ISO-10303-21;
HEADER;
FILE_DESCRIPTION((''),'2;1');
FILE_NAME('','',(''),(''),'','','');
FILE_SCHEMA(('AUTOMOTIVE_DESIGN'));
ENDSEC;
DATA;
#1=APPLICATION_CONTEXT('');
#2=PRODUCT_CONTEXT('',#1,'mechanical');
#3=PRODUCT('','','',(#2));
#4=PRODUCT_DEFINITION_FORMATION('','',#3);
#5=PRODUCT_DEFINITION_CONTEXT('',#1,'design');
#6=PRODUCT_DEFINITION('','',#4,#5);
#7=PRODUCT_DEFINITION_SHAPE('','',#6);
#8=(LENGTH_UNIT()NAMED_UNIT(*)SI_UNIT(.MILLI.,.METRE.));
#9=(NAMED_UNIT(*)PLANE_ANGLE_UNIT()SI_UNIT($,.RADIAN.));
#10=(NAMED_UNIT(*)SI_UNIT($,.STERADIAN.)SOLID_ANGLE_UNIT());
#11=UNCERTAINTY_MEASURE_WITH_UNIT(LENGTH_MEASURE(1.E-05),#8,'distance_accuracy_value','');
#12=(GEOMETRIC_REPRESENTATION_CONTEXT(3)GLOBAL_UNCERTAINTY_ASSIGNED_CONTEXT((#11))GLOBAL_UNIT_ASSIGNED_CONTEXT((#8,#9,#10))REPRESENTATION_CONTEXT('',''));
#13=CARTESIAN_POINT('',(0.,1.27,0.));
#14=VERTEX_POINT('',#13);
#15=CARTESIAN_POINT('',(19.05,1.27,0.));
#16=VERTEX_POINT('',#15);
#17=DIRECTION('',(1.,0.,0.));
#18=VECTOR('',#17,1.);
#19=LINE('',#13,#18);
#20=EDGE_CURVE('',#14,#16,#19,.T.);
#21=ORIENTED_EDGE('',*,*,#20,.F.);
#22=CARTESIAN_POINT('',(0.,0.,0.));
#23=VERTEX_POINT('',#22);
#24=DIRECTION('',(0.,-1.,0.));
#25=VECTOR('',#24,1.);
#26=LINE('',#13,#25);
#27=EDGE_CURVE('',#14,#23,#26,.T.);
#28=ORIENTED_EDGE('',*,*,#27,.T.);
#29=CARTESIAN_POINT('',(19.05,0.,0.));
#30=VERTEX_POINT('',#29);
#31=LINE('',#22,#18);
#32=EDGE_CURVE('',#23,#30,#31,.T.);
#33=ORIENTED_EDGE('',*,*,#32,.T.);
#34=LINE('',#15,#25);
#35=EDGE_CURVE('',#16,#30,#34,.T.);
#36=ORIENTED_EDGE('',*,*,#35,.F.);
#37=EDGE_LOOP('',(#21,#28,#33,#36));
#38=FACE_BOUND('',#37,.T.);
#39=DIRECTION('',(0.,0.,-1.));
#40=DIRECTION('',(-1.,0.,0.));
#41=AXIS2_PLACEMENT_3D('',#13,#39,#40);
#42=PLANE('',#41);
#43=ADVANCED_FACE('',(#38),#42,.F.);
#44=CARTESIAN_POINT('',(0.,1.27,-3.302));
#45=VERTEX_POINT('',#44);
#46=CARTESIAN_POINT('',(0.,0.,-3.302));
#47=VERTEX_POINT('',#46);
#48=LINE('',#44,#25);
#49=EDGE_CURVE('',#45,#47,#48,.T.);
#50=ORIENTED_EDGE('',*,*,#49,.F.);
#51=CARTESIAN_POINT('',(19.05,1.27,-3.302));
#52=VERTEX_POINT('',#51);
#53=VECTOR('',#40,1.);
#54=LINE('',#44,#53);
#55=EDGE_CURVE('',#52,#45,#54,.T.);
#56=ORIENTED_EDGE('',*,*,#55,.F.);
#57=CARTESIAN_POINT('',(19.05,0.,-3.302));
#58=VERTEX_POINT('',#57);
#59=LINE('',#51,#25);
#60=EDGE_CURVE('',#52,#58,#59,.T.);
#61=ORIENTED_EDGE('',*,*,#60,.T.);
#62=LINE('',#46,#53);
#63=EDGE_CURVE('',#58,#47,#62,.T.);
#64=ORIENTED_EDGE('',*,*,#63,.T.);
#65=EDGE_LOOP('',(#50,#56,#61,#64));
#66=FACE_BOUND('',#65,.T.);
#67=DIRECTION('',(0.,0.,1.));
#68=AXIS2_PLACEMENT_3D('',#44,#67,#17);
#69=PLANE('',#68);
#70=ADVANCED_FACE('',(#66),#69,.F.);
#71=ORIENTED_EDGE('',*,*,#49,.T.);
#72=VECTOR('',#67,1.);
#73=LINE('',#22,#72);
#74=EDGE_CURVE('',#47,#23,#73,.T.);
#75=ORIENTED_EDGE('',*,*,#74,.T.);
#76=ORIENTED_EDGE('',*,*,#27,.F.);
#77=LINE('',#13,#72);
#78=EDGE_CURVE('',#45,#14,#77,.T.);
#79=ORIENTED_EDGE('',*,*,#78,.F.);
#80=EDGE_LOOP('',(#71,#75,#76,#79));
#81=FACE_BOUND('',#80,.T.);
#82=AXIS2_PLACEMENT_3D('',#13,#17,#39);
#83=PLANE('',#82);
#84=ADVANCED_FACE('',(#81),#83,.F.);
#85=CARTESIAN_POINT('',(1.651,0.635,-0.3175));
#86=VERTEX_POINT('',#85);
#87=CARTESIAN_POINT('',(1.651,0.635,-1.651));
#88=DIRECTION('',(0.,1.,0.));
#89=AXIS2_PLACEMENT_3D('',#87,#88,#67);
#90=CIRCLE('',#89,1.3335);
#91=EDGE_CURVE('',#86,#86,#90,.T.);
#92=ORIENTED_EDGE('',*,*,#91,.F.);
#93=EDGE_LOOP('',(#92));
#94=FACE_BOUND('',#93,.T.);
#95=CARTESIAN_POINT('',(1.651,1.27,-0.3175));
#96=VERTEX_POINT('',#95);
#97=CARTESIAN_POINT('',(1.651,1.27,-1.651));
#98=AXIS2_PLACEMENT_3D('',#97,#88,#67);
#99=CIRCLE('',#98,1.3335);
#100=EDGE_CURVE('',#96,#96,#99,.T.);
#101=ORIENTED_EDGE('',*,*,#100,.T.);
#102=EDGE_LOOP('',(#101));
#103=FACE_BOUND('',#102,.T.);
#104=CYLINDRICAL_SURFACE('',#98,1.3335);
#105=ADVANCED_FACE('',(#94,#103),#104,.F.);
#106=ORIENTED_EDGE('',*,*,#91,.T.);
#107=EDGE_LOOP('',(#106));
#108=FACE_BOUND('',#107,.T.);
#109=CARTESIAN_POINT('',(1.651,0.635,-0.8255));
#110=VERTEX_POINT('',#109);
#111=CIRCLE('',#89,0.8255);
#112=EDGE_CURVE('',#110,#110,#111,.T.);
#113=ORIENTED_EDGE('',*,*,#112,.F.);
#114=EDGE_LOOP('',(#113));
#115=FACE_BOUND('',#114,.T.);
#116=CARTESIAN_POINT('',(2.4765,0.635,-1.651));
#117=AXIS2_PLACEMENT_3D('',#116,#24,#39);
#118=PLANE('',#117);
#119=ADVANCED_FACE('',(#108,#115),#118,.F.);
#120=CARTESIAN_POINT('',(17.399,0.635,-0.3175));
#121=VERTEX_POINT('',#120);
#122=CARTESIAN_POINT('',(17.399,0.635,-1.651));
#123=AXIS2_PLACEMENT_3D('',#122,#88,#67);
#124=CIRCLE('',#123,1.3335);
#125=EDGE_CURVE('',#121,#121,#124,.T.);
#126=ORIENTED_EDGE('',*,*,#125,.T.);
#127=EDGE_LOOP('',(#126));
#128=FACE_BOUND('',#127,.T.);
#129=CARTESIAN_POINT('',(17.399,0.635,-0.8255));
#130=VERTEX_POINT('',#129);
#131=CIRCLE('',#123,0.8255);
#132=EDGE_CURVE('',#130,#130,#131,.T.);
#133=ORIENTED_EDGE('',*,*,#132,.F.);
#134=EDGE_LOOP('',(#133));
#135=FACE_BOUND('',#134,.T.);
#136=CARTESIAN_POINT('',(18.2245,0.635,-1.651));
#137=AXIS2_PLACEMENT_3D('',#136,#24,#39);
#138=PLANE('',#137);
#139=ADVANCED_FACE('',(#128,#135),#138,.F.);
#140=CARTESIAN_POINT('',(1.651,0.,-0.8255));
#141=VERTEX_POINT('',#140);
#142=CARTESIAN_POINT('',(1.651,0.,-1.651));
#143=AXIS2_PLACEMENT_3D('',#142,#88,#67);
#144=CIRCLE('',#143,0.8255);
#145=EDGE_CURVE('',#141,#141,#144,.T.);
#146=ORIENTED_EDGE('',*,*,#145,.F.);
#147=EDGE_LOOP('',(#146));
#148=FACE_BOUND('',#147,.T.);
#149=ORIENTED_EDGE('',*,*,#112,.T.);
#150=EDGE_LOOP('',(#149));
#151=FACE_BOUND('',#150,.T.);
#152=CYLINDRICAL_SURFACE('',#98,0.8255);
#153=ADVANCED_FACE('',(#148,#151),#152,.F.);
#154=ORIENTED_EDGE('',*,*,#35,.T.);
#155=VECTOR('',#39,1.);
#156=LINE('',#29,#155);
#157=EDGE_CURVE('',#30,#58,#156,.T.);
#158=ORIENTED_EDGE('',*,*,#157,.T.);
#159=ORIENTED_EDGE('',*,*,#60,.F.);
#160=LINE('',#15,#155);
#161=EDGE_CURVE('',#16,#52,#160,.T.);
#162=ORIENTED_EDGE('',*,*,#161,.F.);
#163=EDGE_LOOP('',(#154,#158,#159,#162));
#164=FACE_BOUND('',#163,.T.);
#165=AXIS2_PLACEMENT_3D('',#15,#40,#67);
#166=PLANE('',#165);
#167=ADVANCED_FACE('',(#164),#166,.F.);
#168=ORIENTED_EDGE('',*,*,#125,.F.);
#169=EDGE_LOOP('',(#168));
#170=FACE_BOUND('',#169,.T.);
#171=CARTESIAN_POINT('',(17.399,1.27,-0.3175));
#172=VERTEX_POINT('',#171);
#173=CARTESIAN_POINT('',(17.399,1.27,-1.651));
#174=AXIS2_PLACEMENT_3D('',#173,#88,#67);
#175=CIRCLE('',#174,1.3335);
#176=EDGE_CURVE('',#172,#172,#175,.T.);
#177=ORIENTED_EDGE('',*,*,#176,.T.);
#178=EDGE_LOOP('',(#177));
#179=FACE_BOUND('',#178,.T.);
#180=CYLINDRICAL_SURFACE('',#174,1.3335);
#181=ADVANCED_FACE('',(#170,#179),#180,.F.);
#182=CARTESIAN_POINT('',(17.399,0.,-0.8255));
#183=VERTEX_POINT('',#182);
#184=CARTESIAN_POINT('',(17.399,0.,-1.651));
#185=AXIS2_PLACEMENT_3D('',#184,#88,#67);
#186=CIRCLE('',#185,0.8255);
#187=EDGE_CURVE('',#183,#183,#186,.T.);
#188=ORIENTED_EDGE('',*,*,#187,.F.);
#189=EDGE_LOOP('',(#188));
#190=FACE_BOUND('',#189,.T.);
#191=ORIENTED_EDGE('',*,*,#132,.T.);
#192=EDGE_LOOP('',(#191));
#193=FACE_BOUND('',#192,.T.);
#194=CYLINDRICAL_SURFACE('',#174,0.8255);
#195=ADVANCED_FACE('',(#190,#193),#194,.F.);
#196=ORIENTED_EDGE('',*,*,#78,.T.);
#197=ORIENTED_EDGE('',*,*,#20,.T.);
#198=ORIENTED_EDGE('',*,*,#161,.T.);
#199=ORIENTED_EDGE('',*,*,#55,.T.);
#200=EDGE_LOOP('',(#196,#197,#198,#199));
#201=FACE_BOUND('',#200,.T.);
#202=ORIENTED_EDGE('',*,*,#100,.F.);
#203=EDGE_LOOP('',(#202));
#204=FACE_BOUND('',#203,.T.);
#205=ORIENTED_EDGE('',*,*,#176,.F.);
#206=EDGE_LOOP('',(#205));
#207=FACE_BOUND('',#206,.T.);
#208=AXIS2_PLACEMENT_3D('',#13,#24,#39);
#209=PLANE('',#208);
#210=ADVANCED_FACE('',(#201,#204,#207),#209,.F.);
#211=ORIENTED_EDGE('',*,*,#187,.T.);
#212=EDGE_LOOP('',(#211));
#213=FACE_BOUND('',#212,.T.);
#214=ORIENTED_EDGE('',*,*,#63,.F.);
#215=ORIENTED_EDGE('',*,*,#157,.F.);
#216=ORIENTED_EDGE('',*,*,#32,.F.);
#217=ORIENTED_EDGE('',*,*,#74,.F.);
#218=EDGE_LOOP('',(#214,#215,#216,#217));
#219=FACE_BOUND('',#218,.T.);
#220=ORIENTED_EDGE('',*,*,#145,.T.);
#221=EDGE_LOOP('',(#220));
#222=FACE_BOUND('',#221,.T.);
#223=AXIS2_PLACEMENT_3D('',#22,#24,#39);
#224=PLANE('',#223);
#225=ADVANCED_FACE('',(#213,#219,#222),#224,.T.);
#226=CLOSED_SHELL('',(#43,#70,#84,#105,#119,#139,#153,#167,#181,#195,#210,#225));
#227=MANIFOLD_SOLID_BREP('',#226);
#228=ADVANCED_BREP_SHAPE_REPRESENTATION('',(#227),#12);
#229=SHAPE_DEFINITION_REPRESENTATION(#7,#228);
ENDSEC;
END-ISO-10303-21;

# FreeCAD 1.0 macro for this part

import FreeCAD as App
import Part
import Sketcher
from FreeCAD import Vector
Q = App.Units.Quantity


def add_polygon(sketch, points):
    """Adds a closed chain of lines whose ends are joined by coincident constraints."""
    first, n = sketch.GeometryCount, len(points)
    for a, b in zip(points, points[1:] + points[:1]):
        sketch.addGeometry(Part.LineSegment(App.Vector(*a, 0), App.Vector(*b, 0)), False)
    for i in range(n):
        sketch.addConstraint(Sketcher.Constraint("Coincident", first + i, 2, first + (i + 1) % n, 1))

doc = App.newDocument("Part")
body = doc.addObject("PartDesign::Body", "Body")

# Sketch on XZ plane
sketch1 = body.newObject("Sketcher::SketchObject", "Sketch")
sketch1.AttachmentSupport = (doc.getObject("XZ_Plane"), [""])
sketch1.MapMode = "FlatFace"
add_polygon(sketch1, [(0, -3.3), (0, 0), (19.1, 0), (19.1, -3.3)])  # lines 0-3
sketch1.addConstraint(Sketcher.Constraint("Vertical", 0))
sketch1.addConstraint(Sketcher.Constraint("Horizontal", 1))
sketch1.addConstraint(Sketcher.Constraint("Vertical", 2))
sketch1.addConstraint(Sketcher.Constraint("Horizontal", 3))
sketch1.addConstraint(Sketcher.Constraint("Coincident", 0, 2, -1, 1))
sketch1.addConstraint(Sketcher.Constraint("DistanceX", 1, 1, 1, 2, Q("0.75 in")))
sketch1.addConstraint(Sketcher.Constraint("DistanceY", 0, 1, 0, 2, Q("0.13 in")))
pad1 = body.newObject("PartDesign::Pad", "Pad")
pad1.Profile = sketch1
pad1.Length = Q("0.05 in")
pad1.Reversed = True

# Sketch on XZ plane
sketch2 = body.newObject("Sketcher::SketchObject", "Sketch001")
sketch2.AttachmentSupport = (doc.getObject("XZ_Plane"), [""])
sketch2.MapMode = "FlatFace"
sketch2.AttachmentOffset = App.Placement(Vector(0, 0, -0.05 * 25.4), App.Rotation())
sketch2.addGeometry(Part.Circle(Vector(1.7, -1.7, 0), Vector(0, 0, 1), 0.8), False)
sketch2.addConstraint(Sketcher.Constraint("Diameter", 0, Q("0.065 in")))
sketch2.addConstraint(Sketcher.Constraint("DistanceX", -1, 1, 0, 3, Q("0.065 in")))
sketch2.addConstraint(Sketcher.Constraint("DistanceY", 0, 3, -1, 1, Q("0.065 in")))
doc.recompute()
hole = body.newObject("PartDesign::Hole", "Hole")
hole.Profile = sketch2
hole.ThreadType = "None"
hole.Diameter = Q("0.065 in")
hole.DepthType = "ThroughAll"
hole.HoleCutType = "Counterbore"
hole.HoleCutDiameter = Q("0.105 in")
hole.HoleCutDepth = Q("0.025 in")
hole.Reversed = True
doc.recompute()

datumplane = body.newObject("PartDesign::Plane", "DatumPlane")
datumplane.AttachmentSupport = (doc.getObject("YZ_Plane"), [""])
datumplane.MapMode = "FlatFace"
datumplane.AttachmentOffset = App.Placement(Vector(0, 0, 0.375 * 25.4), App.Rotation())
mirrored = body.newObject("PartDesign::Mirrored", "Mirrored")
mirrored.Originals = [hole]
mirrored.MirrorPlane = (datumplane, [""])
body.Tip = mirrored

doc.recompute()
